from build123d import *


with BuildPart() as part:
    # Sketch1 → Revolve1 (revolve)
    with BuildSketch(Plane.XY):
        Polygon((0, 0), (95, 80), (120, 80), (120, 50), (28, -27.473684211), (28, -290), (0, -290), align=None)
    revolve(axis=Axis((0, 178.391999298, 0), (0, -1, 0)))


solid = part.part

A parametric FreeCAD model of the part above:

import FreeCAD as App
import Part
import Sketcher
Q = App.Units.Quantity

doc = App.newDocument("Part")
body = doc.addObject("PartDesign::Body", "Body")

sketch1 = body.newObject("Sketcher::SketchObject", "Sketch")
sketch1.AttachmentSupport = (doc.getObject("XY_Plane"), [""])
sketch1.MapMode = "FlatFace"
sketch1.addGeometry([
    Part.LineSegment(App.Vector(95, 80, 0), App.Vector(0, 0, 0)),
    Part.LineSegment(App.Vector(0, 0, 0), App.Vector(0, -290, 0)),
    Part.LineSegment(App.Vector(0, -290, 0), App.Vector(28, -290, 0)),
    Part.LineSegment(App.Vector(28, -290, 0), App.Vector(28, -27, 0)),
    Part.LineSegment(App.Vector(28, -27, 0), App.Vector(120, 50, 0)),
    Part.LineSegment(App.Vector(120, 50, 0), App.Vector(120, 80, 0)),
    Part.LineSegment(App.Vector(120, 80, 0), App.Vector(95, 80, 0)),
], False)
sketch1.addConstraint([
    Sketcher.Constraint("Coincident", 0, 2, 1, 1),
    Sketcher.Constraint("Coincident", 1, 2, 2, 1),
    Sketcher.Constraint("Coincident", 2, 2, 3, 1),
    Sketcher.Constraint("Coincident", 3, 2, 4, 1),
    Sketcher.Constraint("Coincident", 4, 2, 5, 1),
    Sketcher.Constraint("Coincident", 5, 2, 6, 1),
    Sketcher.Constraint("Coincident", 6, 2, 0, 1),
    Sketcher.Constraint("Vertical", 1),
    Sketcher.Constraint("Horizontal", 2),
    Sketcher.Constraint("Vertical", 3),
    Sketcher.Constraint("Vertical", 5),
    Sketcher.Constraint("Horizontal", 6),
    Sketcher.Constraint("Coincident", 0, 2, -1, 1),
    Sketcher.Constraint("Parallel", 0, 4),
    Sketcher.Constraint("DistanceX", 2, 1, 2, 2, Q("28 mm")),
    Sketcher.Constraint("DistanceX", 6, 2, 6, 1, Q("25 mm")),
    Sketcher.Constraint("DistanceY", 1, 2, 1, 1, Q("290 mm")),
    Sketcher.Constraint("DistanceY", 5, 1, 5, 2, Q("30 mm")),
    Sketcher.Constraint("DistanceX", -1, 1, 4, 2, Q("120 mm")),
    Sketcher.Constraint("DistanceY", -1, 1, 4, 2, Q("50 mm")),
])
revolution = body.newObject("PartDesign::Revolution", "Revolution")
revolution.Profile = sketch1
revolution.ReferenceAxis = (sketch1, ["V_Axis"])
revolution.Angle = 360

doc.recompute()
